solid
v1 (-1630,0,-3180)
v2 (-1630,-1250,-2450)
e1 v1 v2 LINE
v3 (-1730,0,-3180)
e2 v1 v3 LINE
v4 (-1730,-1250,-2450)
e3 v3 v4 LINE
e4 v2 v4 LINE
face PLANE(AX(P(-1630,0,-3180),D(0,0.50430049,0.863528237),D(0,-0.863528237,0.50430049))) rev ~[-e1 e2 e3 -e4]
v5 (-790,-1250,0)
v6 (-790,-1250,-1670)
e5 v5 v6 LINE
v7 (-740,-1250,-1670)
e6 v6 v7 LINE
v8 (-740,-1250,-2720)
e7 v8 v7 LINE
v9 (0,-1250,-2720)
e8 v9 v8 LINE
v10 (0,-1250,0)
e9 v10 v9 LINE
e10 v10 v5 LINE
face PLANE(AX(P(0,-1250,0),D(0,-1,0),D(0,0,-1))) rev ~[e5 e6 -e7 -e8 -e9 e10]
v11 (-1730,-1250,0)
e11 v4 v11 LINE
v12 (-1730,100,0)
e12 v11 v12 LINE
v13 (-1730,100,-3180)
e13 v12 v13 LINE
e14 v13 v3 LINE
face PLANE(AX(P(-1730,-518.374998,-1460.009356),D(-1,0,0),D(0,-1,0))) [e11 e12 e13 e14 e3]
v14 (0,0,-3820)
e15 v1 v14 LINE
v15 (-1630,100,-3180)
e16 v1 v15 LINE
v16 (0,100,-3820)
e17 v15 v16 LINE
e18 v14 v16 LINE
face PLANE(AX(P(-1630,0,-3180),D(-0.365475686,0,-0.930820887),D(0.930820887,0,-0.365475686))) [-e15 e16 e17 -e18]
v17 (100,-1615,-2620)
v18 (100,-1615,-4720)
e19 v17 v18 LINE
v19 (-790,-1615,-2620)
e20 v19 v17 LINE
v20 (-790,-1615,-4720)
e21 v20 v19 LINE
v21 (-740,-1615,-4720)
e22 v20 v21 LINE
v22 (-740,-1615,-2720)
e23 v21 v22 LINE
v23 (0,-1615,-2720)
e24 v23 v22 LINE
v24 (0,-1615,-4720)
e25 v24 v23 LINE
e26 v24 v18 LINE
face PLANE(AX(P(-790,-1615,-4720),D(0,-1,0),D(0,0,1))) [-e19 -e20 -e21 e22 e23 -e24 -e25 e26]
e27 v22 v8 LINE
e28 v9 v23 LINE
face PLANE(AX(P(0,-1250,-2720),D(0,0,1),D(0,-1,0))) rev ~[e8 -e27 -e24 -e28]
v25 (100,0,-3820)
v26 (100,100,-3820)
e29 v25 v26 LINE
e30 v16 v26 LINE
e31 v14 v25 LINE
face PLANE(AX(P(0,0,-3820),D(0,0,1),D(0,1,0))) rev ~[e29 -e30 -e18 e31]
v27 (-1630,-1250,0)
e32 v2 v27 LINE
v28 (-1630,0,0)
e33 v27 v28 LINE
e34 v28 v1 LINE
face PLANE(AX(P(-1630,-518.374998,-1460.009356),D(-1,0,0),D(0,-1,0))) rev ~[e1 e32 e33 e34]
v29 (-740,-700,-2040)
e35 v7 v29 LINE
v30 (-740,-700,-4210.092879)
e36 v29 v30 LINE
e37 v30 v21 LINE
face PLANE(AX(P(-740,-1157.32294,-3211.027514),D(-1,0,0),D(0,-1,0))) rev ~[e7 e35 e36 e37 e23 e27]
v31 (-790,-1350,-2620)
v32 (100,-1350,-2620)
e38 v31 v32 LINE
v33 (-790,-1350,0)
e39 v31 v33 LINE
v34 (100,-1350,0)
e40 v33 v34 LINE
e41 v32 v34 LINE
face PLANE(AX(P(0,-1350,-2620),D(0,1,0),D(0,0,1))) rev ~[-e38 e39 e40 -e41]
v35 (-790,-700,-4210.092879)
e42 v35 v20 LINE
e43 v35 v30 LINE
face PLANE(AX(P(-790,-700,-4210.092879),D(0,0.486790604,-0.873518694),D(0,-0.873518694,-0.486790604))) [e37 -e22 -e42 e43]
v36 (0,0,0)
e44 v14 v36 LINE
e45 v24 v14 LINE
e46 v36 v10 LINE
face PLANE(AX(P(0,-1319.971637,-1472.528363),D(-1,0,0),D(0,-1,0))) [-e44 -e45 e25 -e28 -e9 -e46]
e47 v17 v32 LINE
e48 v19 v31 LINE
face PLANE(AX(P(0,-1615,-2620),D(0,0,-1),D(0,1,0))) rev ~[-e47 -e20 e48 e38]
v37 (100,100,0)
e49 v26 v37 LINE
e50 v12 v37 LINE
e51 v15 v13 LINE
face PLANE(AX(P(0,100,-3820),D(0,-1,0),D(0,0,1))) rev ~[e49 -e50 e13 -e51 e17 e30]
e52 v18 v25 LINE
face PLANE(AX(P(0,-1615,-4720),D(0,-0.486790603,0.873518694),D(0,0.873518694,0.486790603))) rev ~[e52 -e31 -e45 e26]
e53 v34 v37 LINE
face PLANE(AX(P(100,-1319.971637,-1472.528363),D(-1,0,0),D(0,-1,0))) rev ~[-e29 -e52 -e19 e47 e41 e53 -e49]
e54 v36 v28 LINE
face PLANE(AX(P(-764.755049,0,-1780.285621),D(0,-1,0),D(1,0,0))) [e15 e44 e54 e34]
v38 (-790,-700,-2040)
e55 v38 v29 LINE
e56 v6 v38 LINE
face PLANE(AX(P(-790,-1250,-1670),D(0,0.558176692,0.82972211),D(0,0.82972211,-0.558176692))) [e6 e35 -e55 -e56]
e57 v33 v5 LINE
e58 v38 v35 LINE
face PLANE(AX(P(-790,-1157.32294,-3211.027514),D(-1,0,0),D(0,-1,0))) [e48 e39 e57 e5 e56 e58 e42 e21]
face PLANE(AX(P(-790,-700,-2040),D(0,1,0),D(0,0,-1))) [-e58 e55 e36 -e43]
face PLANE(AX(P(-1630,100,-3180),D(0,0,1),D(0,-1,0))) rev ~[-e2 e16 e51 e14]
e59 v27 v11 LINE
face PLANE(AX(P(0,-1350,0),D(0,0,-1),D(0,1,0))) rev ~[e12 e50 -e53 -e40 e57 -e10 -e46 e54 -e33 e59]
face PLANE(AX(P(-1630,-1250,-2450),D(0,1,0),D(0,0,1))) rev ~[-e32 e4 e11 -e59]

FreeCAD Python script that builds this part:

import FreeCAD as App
import Part
import Sketcher
from FreeCAD import Vector
Q = App.Units.Quantity

doc = App.newDocument("Part")
body = doc.addObject("PartDesign::Body", "Body")

# Sketch on XZ plane
sketch1 = doc.addObject("Sketcher::SketchObject", "Sketch")
body.addObject(sketch1)
sketch1.AttachmentSupport = (doc.XZ_Plane, [""])
sketch1.MapMode = "FlatFace"
sketch1.addGeometry(Part.LineSegment(Vector(0, -3820, 0), Vector(0, 0, 0)), False)
sketch1.addGeometry(Part.LineSegment(Vector(0, 0, 0), Vector(-1630, 0, 0)), False)
sketch1.addGeometry(Part.LineSegment(Vector(-1630, 0, 0), Vector(-1630, -3180, 0)), False)
sketch1.addGeometry(Part.LineSegment(Vector(-1630, -3180, 0), Vector(0, -3820, 0)), False)
sketch1.addConstraint(Sketcher.Constraint("Coincident", 0, 2, 1, 1))
sketch1.addConstraint(Sketcher.Constraint("Coincident", 1, 2, 2, 1))
sketch1.addConstraint(Sketcher.Constraint("Coincident", 2, 2, 3, 1))
sketch1.addConstraint(Sketcher.Constraint("Coincident", 3, 2, 0, 1))
sketch1.addConstraint(Sketcher.Constraint("Vertical", 0))
sketch1.addConstraint(Sketcher.Constraint("Horizontal", 1))
sketch1.addConstraint(Sketcher.Constraint("Vertical", 2))
sketch1.addConstraint(Sketcher.Constraint("Coincident", 0, 2, -1, 1))
sketch1.addConstraint(Sketcher.Constraint("DistanceX", 1, 2, 1, 1, Q("1630 mm")))
sketch1.addConstraint(Sketcher.Constraint("DistanceY", 0, 1, 0, 2, Q("3820 mm")))
sketch1.addConstraint(Sketcher.Constraint("DistanceY", 2, 2, 2, 1, Q("3180 mm")))
pad1 = doc.addObject("PartDesign::Pad", "Pad")
body.addObject(pad1)
pad1.Profile = sketch1
pad1.Length = 100
pad1.Reversed = True

# Sketch on YZ plane
sketch2 = doc.addObject("Sketcher::SketchObject", "Sketch001")
body.addObject(sketch2)
sketch2.AttachmentSupport = (doc.YZ_Plane, [""])
sketch2.MapMode = "FlatFace"
sketch2.AttachmentOffset = App.Placement(Vector(0, 0, -1630), App.Rotation())
sketch2.addGeometry(Part.LineSegment(Vector(-1250, 0, 0), Vector(100, 0, 0)), False)
sketch2.addGeometry(Part.LineSegment(Vector(100, 0, 0), Vector(100, -3180, 0)), False)
sketch2.addGeometry(Part.LineSegment(Vector(100, -3180, 0), Vector(0, -3180, 0)), False)
sketch2.addGeometry(Part.LineSegment(Vector(0, -3180, 0), Vector(-1250, -2450, 0)), False)
sketch2.addGeometry(Part.LineSegment(Vector(-1250, -2450, 0), Vector(-1250, 0, 0)), False)
sketch2.addConstraint(Sketcher.Constraint("Coincident", 0, 2, 1, 1))
sketch2.addConstraint(Sketcher.Constraint("Coincident", 1, 2, 2, 1))
sketch2.addConstraint(Sketcher.Constraint("Coincident", 2, 2, 3, 1))
sketch2.addConstraint(Sketcher.Constraint("Coincident", 3, 2, 4, 1))
sketch2.addConstraint(Sketcher.Constraint("Coincident", 4, 2, 0, 1))
sketch2.addConstraint(Sketcher.Constraint("Horizontal", 0))
sketch2.addConstraint(Sketcher.Constraint("Vertical", 1))
sketch2.addConstraint(Sketcher.Constraint("Horizontal", 2))
sketch2.addConstraint(Sketcher.Constraint("Vertical", 4))
sketch2.addConstraint(Sketcher.Constraint("PointOnObject", 0, 2, -1))
sketch2.addConstraint(Sketcher.Constraint("PointOnObject", 2, 2, -2))
sketch2.addConstraint(Sketcher.Constraint("DistanceX", 0, 1, 0, 2, Q("1350 mm")))
sketch2.addConstraint(Sketcher.Constraint("DistanceX", 2, 2, 2, 1, Q("100 mm")))
sketch2.addConstraint(Sketcher.Constraint("DistanceY", 1, 2, 1, 1, Q("3180 mm")))
sketch2.addConstraint(Sketcher.Constraint("DistanceY", 4, 1, 4, 2, Q("2450 mm")))
pad2 = doc.addObject("PartDesign::Pad", "Pad001")
body.addObject(pad2)
pad2.Profile = sketch2
pad2.Length = 100
pad2.Reversed = True

# Sketch on YZ plane
sketch3 = doc.addObject("Sketcher::SketchObject", "Sketch002")
body.addObject(sketch3)
sketch3.AttachmentSupport = (doc.YZ_Plane, [""])
sketch3.MapMode = "FlatFace"
sketch3.addGeometry(Part.LineSegment(Vector(100, -3820, 0), Vector(100, 0, 0)), False)
sketch3.addGeometry(Part.LineSegment(Vector(100, 0, 0), Vector(-1250, 0, 0)), False)
sketch3.addGeometry(Part.LineSegment(Vector(-1250, 0, 0), Vector(-1250, -2720, 0)), False)
sketch3.addGeometry(Part.LineSegment(Vector(-1250, -2720, 0), Vector(-1615, -2720, 0)), False)
sketch3.addGeometry(Part.LineSegment(Vector(-1615, -2720, 0), Vector(-1615, -4720, 0)), False)
sketch3.addGeometry(Part.LineSegment(Vector(-1615, -4720, 0), Vector(0, -3820, 0)), False)
sketch3.addGeometry(Part.LineSegment(Vector(0, -3820, 0), Vector(100, -3820, 0)), False)
sketch3.addConstraint(Sketcher.Constraint("Coincident", 0, 2, 1, 1))
sketch3.addConstraint(Sketcher.Constraint("Coincident", 1, 2, 2, 1))
sketch3.addConstraint(Sketcher.Constraint("Coincident", 2, 2, 3, 1))
sketch3.addConstraint(Sketcher.Constraint("Coincident", 3, 2, 4, 1))
sketch3.addConstraint(Sketcher.Constraint("Coincident", 4, 2, 5, 1))
sketch3.addConstraint(Sketcher.Constraint("Coincident", 5, 2, 6, 1))
sketch3.addConstraint(Sketcher.Constraint("Coincident", 6, 2, 0, 1))
sketch3.addConstraint(Sketcher.Constraint("Vertical", 0))
sketch3.addConstraint(Sketcher.Constraint("Horizontal", 1))
sketch3.addConstraint(Sketcher.Constraint("Vertical", 2))
sketch3.addConstraint(Sketcher.Constraint("Horizontal", 3))
sketch3.addConstraint(Sketcher.Constraint("Vertical", 4))
sketch3.addConstraint(Sketcher.Constraint("Horizontal", 6))
sketch3.addConstraint(Sketcher.Constraint("PointOnObject", 0, 2, -1))
sketch3.addConstraint(Sketcher.Constraint("PointOnObject", 5, 2, -2))
sketch3.addConstraint(Sketcher.Constraint("DistanceX", 1, 2, 1, 1, Q("1350 mm")))
sketch3.addConstraint(Sketcher.Constraint("DistanceX", 3, 2, 3, 1, Q("365 mm")))
sketch3.addConstraint(Sketcher.Constraint("DistanceX", 6, 1, 6, 2, Q("100 mm")))
sketch3.addConstraint(Sketcher.Constraint("DistanceY", 0, 1, 0, 2, Q("3820 mm")))
sketch3.addConstraint(Sketcher.Constraint("DistanceY", 2, 2, 2, 1, Q("2720 mm")))
sketch3.addConstraint(Sketcher.Constraint("DistanceY", 4, 2, 4, 1, Q("2000 mm")))
pad3 = doc.addObject("PartDesign::Pad", "Pad002")
body.addObject(pad3)
pad3.Profile = sketch3
pad3.Length = 100

# Sketch on YZ plane
sketch4 = doc.addObject("Sketcher::SketchObject", "Sketch003")
body.addObject(sketch4)
sketch4.AttachmentSupport = (doc.YZ_Plane, [""])
sketch4.MapMode = "FlatFace"
sketch4.addGeometry(Part.LineSegment(Vector(-1350, 0, 0), Vector(-1250, 0, 0)), False)
sketch4.addGeometry(Part.LineSegment(Vector(-1250, 0, 0), Vector(-1250, -2720, 0)), False)
sketch4.addGeometry(Part.LineSegment(Vector(-1250, -2720, 0), Vector(-1615, -2720, 0)), False)
sketch4.addGeometry(Part.LineSegment(Vector(-1615, -2720, 0), Vector(-1615, -2620, 0)), False)
sketch4.addGeometry(Part.LineSegment(Vector(-1615, -2620, 0), Vector(-1350, -2620, 0)), False)
sketch4.addGeometry(Part.LineSegment(Vector(-1350, -2620, 0), Vector(-1350, 0, 0)), False)
sketch4.addConstraint(Sketcher.Constraint("Coincident", 0, 2, 1, 1))
sketch4.addConstraint(Sketcher.Constraint("Coincident", 1, 2, 2, 1))
sketch4.addConstraint(Sketcher.Constraint("Coincident", 2, 2, 3, 1))
sketch4.addConstraint(Sketcher.Constraint("Coincident", 3, 2, 4, 1))
sketch4.addConstraint(Sketcher.Constraint("Coincident", 4, 2, 5, 1))
sketch4.addConstraint(Sketcher.Constraint("Coincident", 5, 2, 0, 1))
sketch4.addConstraint(Sketcher.Constraint("Horizontal", 0))
sketch4.addConstraint(Sketcher.Constraint("Vertical", 1))
sketch4.addConstraint(Sketcher.Constraint("Horizontal", 2))
sketch4.addConstraint(Sketcher.Constraint("Vertical", 3))
sketch4.addConstraint(Sketcher.Constraint("Horizontal", 4))
sketch4.addConstraint(Sketcher.Constraint("Vertical", 5))
sketch4.addConstraint(Sketcher.Constraint("PointOnObject", 0, 2, -1))
sketch4.addConstraint(Sketcher.Constraint("Equal", 0, 3))
sketch4.addConstraint(Sketcher.Constraint("DistanceX", 0, 1, 0, 2, Q("100 mm")))
sketch4.addConstraint(Sketcher.Constraint("DistanceX", 2, 2, 2, 1, Q("365 mm")))
sketch4.addConstraint(Sketcher.Constraint("DistanceY", 1, 2, 1, 1, Q("2720 mm")))
sketch4.addConstraint(Sketcher.Constraint("DistanceX", 0, 2, -1, 1, Q("1250 mm")))
pad4 = doc.addObject("PartDesign::Pad", "Pad003")
body.addObject(pad4)
pad4.Profile = sketch4
pad4.Length = 100

# Sketch on YZ plane
sketch5 = doc.addObject("Sketcher::SketchObject", "Sketch004")
body.addObject(sketch5)
sketch5.AttachmentSupport = (doc.YZ_Plane, [""])
sketch5.MapMode = "FlatFace"
sketch5.addGeometry(Part.LineSegment(Vector(-1350, 0, 0), Vector(-1250, 0, 0)), False)
sketch5.addGeometry(Part.LineSegment(Vector(-1250, 0, 0), Vector(-1250, -2720, 0)), False)
sketch5.addGeometry(Part.LineSegment(Vector(-1250, -2720, 0), Vector(-1615, -2720, 0)), False)
sketch5.addGeometry(Part.LineSegment(Vector(-1615, -2720, 0), Vector(-1615, -2620, 0)), False)
sketch5.addGeometry(Part.LineSegment(Vector(-1615, -2620, 0), Vector(-1350, -2620, 0)), False)
sketch5.addGeometry(Part.LineSegment(Vector(-1350, -2620, 0), Vector(-1350, 0, 0)), False)
sketch5.addConstraint(Sketcher.Constraint("Coincident", 0, 2, 1, 1))
sketch5.addConstraint(Sketcher.Constraint("Coincident", 1, 2, 2, 1))
sketch5.addConstraint(Sketcher.Constraint("Coincident", 2, 2, 3, 1))
sketch5.addConstraint(Sketcher.Constraint("Coincident", 3, 2, 4, 1))
sketch5.addConstraint(Sketcher.Constraint("Coincident", 4, 2, 5, 1))
sketch5.addConstraint(Sketcher.Constraint("Coincident", 5, 2, 0, 1))
sketch5.addConstraint(Sketcher.Constraint("Horizontal", 0))
sketch5.addConstraint(Sketcher.Constraint("Vertical", 1))
sketch5.addConstraint(Sketcher.Constraint("Horizontal", 2))
sketch5.addConstraint(Sketcher.Constraint("Vertical", 3))
sketch5.addConstraint(Sketcher.Constraint("Horizontal", 4))
sketch5.addConstraint(Sketcher.Constraint("Vertical", 5))
sketch5.addConstraint(Sketcher.Constraint("PointOnObject", 0, 2, -1))
sketch5.addConstraint(Sketcher.Constraint("Equal", 0, 3))
sketch5.addConstraint(Sketcher.Constraint("DistanceX", 0, 1, 0, 2, Q("100 mm")))
sketch5.addConstraint(Sketcher.Constraint("DistanceX", 2, 2, 2, 1, Q("365 mm")))
sketch5.addConstraint(Sketcher.Constraint("DistanceY", 1, 2, 1, 1, Q("2720 mm")))
sketch5.addConstraint(Sketcher.Constraint("DistanceX", 0, 2, -1, 1, Q("1250 mm")))
pad5 = doc.addObject("PartDesign::Pad", "Pad004")
body.addObject(pad5)
pad5.Profile = sketch5
pad5.Length = 790
pad5.Reversed = True

# Sketch on YZ plane
sketch6 = doc.addObject("Sketcher::SketchObject", "Sketch005")
body.addObject(sketch6)
sketch6.AttachmentSupport = (doc.YZ_Plane, [""])
sketch6.MapMode = "FlatFace"
sketch6.AttachmentOffset = App.Placement(Vector(0, 0, -790), App.Rotation())
sketch6.addGeometry(Part.LineSegment(Vector(-1250, -2720, 0), Vector(-1250, -1670, 0)), False)
sketch6.addGeometry(Part.LineSegment(Vector(-1250, -1670, 0), Vector(-700, -2040, 0)), False)
sketch6.addGeometry(Part.LineSegment(Vector(-700, -2040, 0), Vector(-700, -4210, 0)), False)
sketch6.addGeometry(Part.LineSegment(Vector(-700, -4210, 0), Vector(-1615, -4720, 0)), False)
sketch6.addGeometry(Part.LineSegment(Vector(-1615, -4720, 0), Vector(-1615, -2720, 0)), False)
sketch6.addGeometry(Part.LineSegment(Vector(-1615, -2720, 0), Vector(-1250, -2720, 0)), False)
sketch6.addConstraint(Sketcher.Constraint("Coincident", 0, 2, 1, 1))
sketch6.addConstraint(Sketcher.Constraint("Coincident", 1, 2, 2, 1))
sketch6.addConstraint(Sketcher.Constraint("Coincident", 2, 2, 3, 1))
sketch6.addConstraint(Sketcher.Constraint("Coincident", 3, 2, 4, 1))
sketch6.addConstraint(Sketcher.Constraint("Coincident", 4, 2, 5, 1))
sketch6.addConstraint(Sketcher.Constraint("Coincident", 5, 2, 0, 1))
sketch6.addConstraint(Sketcher.Constraint("Vertical", 0))
sketch6.addConstraint(Sketcher.Constraint("Vertical", 2))
sketch6.addConstraint(Sketcher.Constraint("Vertical", 4))
sketch6.addConstraint(Sketcher.Constraint("Horizontal", 5))
sketch6.addConstraint(Sketcher.Constraint("DistanceX", 5, 1, 5, 2, Q("365 mm")))
sketch6.addConstraint(Sketcher.Constraint("DistanceY", 0, 1, 0, 2, Q("1050 mm")))
sketch6.addConstraint(Sketcher.Constraint("DistanceY", 4, 1, 4, 2, Q("2000 mm")))
sketch6.addConstraint(Sketcher.Constraint("DistanceX", 0, 2, -1, 1, Q("1250 mm")))
sketch6.addConstraint(Sketcher.Constraint("DistanceY", 0, 2, -1, 1, Q("1670 mm")))
sketch6.addConstraint(Sketcher.Constraint("DistanceX", 1, 2, -1, 1, Q("700 mm")))
sketch6.addConstraint(Sketcher.Constraint("DistanceY", 1, 2, -1, 1, Q("2040 mm")))
sketch6.addConstraint(Sketcher.Constraint("Distance", 3, Q("1047.4876 mm")))
pad6 = doc.addObject("PartDesign::Pad", "Pad005")
body.addObject(pad6)
pad6.Profile = sketch6
pad6.Length = 50

doc.recompute()
